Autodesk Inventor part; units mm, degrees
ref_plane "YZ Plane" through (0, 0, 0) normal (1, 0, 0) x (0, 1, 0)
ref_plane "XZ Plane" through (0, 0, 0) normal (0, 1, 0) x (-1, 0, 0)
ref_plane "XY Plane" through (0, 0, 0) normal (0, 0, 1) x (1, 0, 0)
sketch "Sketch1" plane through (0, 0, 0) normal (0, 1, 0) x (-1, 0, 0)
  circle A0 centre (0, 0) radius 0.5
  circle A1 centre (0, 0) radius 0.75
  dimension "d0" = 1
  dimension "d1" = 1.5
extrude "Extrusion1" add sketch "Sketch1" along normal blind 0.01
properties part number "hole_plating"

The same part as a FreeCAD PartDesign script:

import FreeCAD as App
import Part
import Sketcher
from FreeCAD import Vector
Q = App.Units.Quantity

doc = App.newDocument("Part")
body = doc.addObject("PartDesign::Body", "Body")

sketch1 = body.newObject("Sketcher::SketchObject", "Sketch")
sketch1.AttachmentSupport = (doc.getObject("XZ_Plane"), [""])
sketch1.MapMode = "FlatFace"
sketch1.addGeometry(Part.Circle(Vector(0, 0, 0), Vector(0, 0, 1), 0.75), False)
sketch1.addGeometry(Part.Circle(Vector(0, 0, 0), Vector(0, 0, 1), 0.5), False)
sketch1.addConstraint(Sketcher.Constraint("Coincident", 0, 3, -1, 1))
sketch1.addConstraint(Sketcher.Constraint("Coincident", 1, 3, -1, 1))
sketch1.addConstraint(Sketcher.Constraint("Diameter", 1, Q("1 mm")))
sketch1.addConstraint(Sketcher.Constraint("Diameter", 0, Q("1.5 mm")))
pad1 = body.newObject("PartDesign::Pad", "Pad")
pad1.Profile = sketch1
pad1.Length = 0.01
pad1.Reversed = True

doc.recompute()
